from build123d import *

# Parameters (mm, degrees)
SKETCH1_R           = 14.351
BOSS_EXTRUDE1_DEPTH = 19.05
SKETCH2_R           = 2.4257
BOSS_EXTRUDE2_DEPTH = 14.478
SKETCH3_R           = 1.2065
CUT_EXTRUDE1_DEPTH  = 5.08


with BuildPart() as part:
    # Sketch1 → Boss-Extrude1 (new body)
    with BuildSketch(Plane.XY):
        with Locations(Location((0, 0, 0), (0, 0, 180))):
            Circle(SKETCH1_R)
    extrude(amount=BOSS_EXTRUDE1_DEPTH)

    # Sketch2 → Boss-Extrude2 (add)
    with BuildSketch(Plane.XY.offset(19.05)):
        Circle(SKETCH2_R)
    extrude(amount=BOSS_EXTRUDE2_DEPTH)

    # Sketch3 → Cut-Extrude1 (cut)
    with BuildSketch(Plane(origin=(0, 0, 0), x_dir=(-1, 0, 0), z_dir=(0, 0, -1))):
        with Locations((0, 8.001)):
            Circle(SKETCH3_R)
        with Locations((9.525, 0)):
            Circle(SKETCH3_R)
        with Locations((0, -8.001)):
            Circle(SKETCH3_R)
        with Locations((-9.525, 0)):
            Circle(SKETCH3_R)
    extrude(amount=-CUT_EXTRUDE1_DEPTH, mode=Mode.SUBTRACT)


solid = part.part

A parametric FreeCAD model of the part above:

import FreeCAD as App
import Part
import Sketcher
from FreeCAD import Vector
Q = App.Units.Quantity

doc = App.newDocument("Part")
body = doc.addObject("PartDesign::Body", "Body")

# Sketch on XY plane
sketch1 = body.newObject("Sketcher::SketchObject", "Sketch")
sketch1.AttachmentSupport = (doc.getObject("XY_Plane"), [""])
sketch1.MapMode = "FlatFace"
sketch1.addGeometry(Part.Circle(Vector(0, 0, 0), Vector(0, 0, 1), 14), False)
sketch1.addConstraint(Sketcher.Constraint("Coincident", 0, 3, -1, 1))
sketch1.addConstraint(Sketcher.Constraint("Diameter", 0, Q("1.13 in")))
pad1 = body.newObject("PartDesign::Pad", "Pad")
pad1.Profile = sketch1
pad1.Length = Q("0.75 in")

# Sketch on XY plane
sketch2 = body.newObject("Sketcher::SketchObject", "Sketch001")
sketch2.AttachmentSupport = (doc.getObject("XY_Plane"), [""])
sketch2.MapMode = "FlatFace"
sketch2.AttachmentOffset = App.Placement(Vector(0, 0, 0.75 * 25.4), App.Rotation())
sketch2.addGeometry(Part.Circle(Vector(0, 0, 0), Vector(0, 0, 1), 2.4), False)
sketch2.addConstraint(Sketcher.Constraint("Coincident", 0, 3, -1, 1))
sketch2.addConstraint(Sketcher.Constraint("Diameter", 0, Q("0.191 in")))
pad2 = body.newObject("PartDesign::Pad", "Pad001")
pad2.Profile = sketch2
pad2.Length = Q("0.57 in")

# Sketch on XY plane
sketch3 = body.newObject("Sketcher::SketchObject", "Sketch002")
sketch3.AttachmentSupport = (doc.getObject("XY_Plane"), [""])
sketch3.MapMode = "FlatFace"
sketch3.addGeometry(Part.Circle(Vector(0, 8, 0), Vector(0, 0, 1), 1.2), False)
sketch3.addGeometry(Part.Circle(Vector(-9.5, 0, 0), Vector(0, 0, 1), 1.2), False)
sketch3.addGeometry(Part.Circle(Vector(0, -8, 0), Vector(0, 0, 1), 1.2), False)
sketch3.addGeometry(Part.Circle(Vector(9.5, 0, 0), Vector(0, 0, 1), 1.2), False)
sketch3.addConstraint(Sketcher.Constraint("Equal", 0, 1))
sketch3.addConstraint(Sketcher.Constraint("Equal", 1, 2))
sketch3.addConstraint(Sketcher.Constraint("Equal", 2, 3))
sketch3.addConstraint(Sketcher.Constraint("Symmetric", 0, 3, 2, 3, -1, 1))
sketch3.addConstraint(Sketcher.Constraint("Symmetric", 1, 3, 3, 3, -1, 1))
sketch3.addConstraint(Sketcher.Constraint("PointOnObject", 0, 3, -2))
sketch3.addConstraint(Sketcher.Constraint("PointOnObject", 1, 3, -1))
sketch3.addConstraint(Sketcher.Constraint("Diameter", 0, Q("0.095 in")))
sketch3.addConstraint(Sketcher.Constraint("DistanceY", 2, 3, 0, 3, Q("0.63 in")))
sketch3.addConstraint(Sketcher.Constraint("DistanceX", 1, 3, 3, 3, Q("0.75 in")))
pocket1 = body.newObject("PartDesign::Pocket", "Pocket")
pocket1.Profile = sketch3
pocket1.Length = Q("0.2 in")
pocket1.Reversed = True

doc.recompute()
